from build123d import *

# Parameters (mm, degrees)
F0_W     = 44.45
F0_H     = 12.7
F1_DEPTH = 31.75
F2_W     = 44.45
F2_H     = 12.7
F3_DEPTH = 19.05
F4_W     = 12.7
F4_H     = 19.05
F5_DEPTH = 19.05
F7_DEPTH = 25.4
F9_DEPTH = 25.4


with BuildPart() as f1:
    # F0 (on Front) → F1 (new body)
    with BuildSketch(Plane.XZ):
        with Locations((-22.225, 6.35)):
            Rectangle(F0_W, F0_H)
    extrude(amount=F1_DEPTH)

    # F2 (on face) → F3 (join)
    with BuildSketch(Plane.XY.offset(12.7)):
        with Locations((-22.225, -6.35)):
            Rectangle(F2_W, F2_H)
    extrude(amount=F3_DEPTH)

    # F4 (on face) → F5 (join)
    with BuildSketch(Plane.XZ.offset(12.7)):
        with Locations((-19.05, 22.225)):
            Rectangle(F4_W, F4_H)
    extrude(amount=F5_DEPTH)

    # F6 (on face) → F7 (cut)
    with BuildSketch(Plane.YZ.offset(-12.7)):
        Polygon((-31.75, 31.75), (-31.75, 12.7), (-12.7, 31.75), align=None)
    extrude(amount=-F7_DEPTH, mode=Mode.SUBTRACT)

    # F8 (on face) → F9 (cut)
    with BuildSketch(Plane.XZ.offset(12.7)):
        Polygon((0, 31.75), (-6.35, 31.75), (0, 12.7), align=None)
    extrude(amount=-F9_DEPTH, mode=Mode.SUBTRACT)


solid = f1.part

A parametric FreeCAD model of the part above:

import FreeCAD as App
import Part
import Sketcher
Q = App.Units.Quantity


def add_polygon(sketch, points):
    """Adds a closed chain of lines whose ends are joined by coincident constraints."""
    first, n = sketch.GeometryCount, len(points)
    for a, b in zip(points, points[1:] + points[:1]):
        sketch.addGeometry(Part.LineSegment(App.Vector(*a, 0), App.Vector(*b, 0)), False)
    for i in range(n):
        sketch.addConstraint(Sketcher.Constraint("Coincident", first + i, 2, first + (i + 1) % n, 1))

doc = App.newDocument("Part")
body = doc.addObject("PartDesign::Body", "Body")

# Sketch on XZ plane
sketch1 = doc.addObject("Sketcher::SketchObject", "Sketch")
body.addObject(sketch1)
sketch1.AttachmentSupport = (doc.XZ_Plane, [""])
sketch1.MapMode = "FlatFace"
add_polygon(sketch1, [(-44, 13), (-44, 0), (0, 0), (0, 13)])  # lines 0-3
sketch1.addConstraint([
    Sketcher.Constraint("Vertical", 0),
    Sketcher.Constraint("Horizontal", 1),
    Sketcher.Constraint("Vertical", 2),
    Sketcher.Constraint("Horizontal", 3),
    Sketcher.Constraint("Coincident", 1, 2, -1, 1),
    Sketcher.Constraint("DistanceY", 0, 2, 0, 1, Q("0.5 in")),
    Sketcher.Constraint("DistanceX", 1, 1, 1, 2, Q("1.75 in")),
])
pad1 = doc.addObject("PartDesign::Pad", "Pad")
body.addObject(pad1)
pad1.Profile = sketch1
pad1.Length = Q("1.25 in")

# Sketch on XY plane
sketch2 = doc.addObject("Sketcher::SketchObject", "Sketch001")
body.addObject(sketch2)
sketch2.AttachmentSupport = (doc.XY_Plane, [""])
sketch2.MapMode = "FlatFace"
sketch2.AttachmentOffset = App.Placement(App.Vector(0, 0, 0.5 * 25.4), App.Rotation())
add_polygon(sketch2, [(-44, 0), (-44, -13), (0, -13), (0, 0)])  # lines 0-3
sketch2.addConstraint([
    Sketcher.Constraint("Vertical", 0),
    Sketcher.Constraint("Horizontal", 1),
    Sketcher.Constraint("Vertical", 2),
    Sketcher.Constraint("Horizontal", 3),
    Sketcher.Constraint("Coincident", 2, 2, -1, 1),
    Sketcher.Constraint("DistanceY", 0, 2, 0, 1, Q("0.5 in")),
    Sketcher.Constraint("DistanceX", 1, 1, 1, 2, Q("1.75 in")),
])
pad2 = doc.addObject("PartDesign::Pad", "Pad001")
body.addObject(pad2)
pad2.Profile = sketch2
pad2.Length = Q("0.75 in")

# Sketch on XZ plane
sketch3 = doc.addObject("Sketcher::SketchObject", "Sketch002")
body.addObject(sketch3)
sketch3.AttachmentSupport = (doc.XZ_Plane, [""])
sketch3.MapMode = "FlatFace"
sketch3.AttachmentOffset = App.Placement(App.Vector(0, 0, 0.5 * 25.4), App.Rotation())
add_polygon(sketch3, [(-25, 32), (-25, 13), (-13, 13), (-13, 32)])  # lines 0-3
sketch3.addConstraint([
    Sketcher.Constraint("Vertical", 0),
    Sketcher.Constraint("Horizontal", 1),
    Sketcher.Constraint("Vertical", 2),
    Sketcher.Constraint("Horizontal", 3),
    Sketcher.Constraint("DistanceX", 1, 1, 1, 2, Q("0.5 in")),
    Sketcher.Constraint("DistanceX", 0, 2, -1, 1, Q("1 in")),
    Sketcher.Constraint("DistanceY", 0, 2, 0, 1, Q("0.75 in")),
    Sketcher.Constraint("DistanceY", -1, 1, 0, 2, Q("0.5 in")),
])
pad3 = doc.addObject("PartDesign::Pad", "Pad002")
body.addObject(pad3)
pad3.Profile = sketch3
pad3.Length = Q("0.75 in")

# Sketch on YZ plane
sketch4 = doc.addObject("Sketcher::SketchObject", "Sketch003")
body.addObject(sketch4)
sketch4.AttachmentSupport = (doc.YZ_Plane, [""])
sketch4.MapMode = "FlatFace"
sketch4.AttachmentOffset = App.Placement(App.Vector(0, 0, -0.5 * 25.4), App.Rotation())
add_polygon(sketch4, [(-32, 32), (-32, 13), (-13, 32)])  # lines 0-2
sketch4.addConstraint([
    Sketcher.Constraint("Vertical", 0),
    Sketcher.Constraint("Horizontal", 2),
    Sketcher.Constraint("Equal", 2, 0),
    Sketcher.Constraint("DistanceX", 2, 2, 2, 1, Q("0.75 in")),
    Sketcher.Constraint("DistanceY", -1, 1, 0, 2, Q("0.5 in")),
    Sketcher.Constraint("DistanceX", 1, 2, -1, 1, Q("0.5 in")),
])
pocket1 = doc.addObject("PartDesign::Pocket", "Pocket")
body.addObject(pocket1)
pocket1.Profile = sketch4
pocket1.Length = Q("1 in")

# Sketch on XZ plane
sketch5 = doc.addObject("Sketcher::SketchObject", "Sketch004")
body.addObject(sketch5)
sketch5.AttachmentSupport = (doc.XZ_Plane, [""])
sketch5.MapMode = "FlatFace"
sketch5.AttachmentOffset = App.Placement(App.Vector(0, 0, 0.5 * 25.4), App.Rotation())
add_polygon(sketch5, [(0, 32), (-6, 32), (0, 13)])  # lines 0-2
sketch5.addConstraint([
    Sketcher.Constraint("Horizontal", 0),
    Sketcher.Constraint("Vertical", 2),
    Sketcher.Constraint("PointOnObject", 1, 2, -2),
    Sketcher.Constraint("DistanceX", 0, 2, 0, 1, Q("0.25 in")),
    Sketcher.Constraint("DistanceY", 2, 1, 2, 2, Q("0.75 in")),
    Sketcher.Constraint("DistanceY", -1, 1, 1, 2, Q("0.5 in")),
])
pocket2 = doc.addObject("PartDesign::Pocket", "Pocket001")
body.addObject(pocket2)
pocket2.Profile = sketch5
pocket2.Length = Q("1 in")

doc.recompute()
